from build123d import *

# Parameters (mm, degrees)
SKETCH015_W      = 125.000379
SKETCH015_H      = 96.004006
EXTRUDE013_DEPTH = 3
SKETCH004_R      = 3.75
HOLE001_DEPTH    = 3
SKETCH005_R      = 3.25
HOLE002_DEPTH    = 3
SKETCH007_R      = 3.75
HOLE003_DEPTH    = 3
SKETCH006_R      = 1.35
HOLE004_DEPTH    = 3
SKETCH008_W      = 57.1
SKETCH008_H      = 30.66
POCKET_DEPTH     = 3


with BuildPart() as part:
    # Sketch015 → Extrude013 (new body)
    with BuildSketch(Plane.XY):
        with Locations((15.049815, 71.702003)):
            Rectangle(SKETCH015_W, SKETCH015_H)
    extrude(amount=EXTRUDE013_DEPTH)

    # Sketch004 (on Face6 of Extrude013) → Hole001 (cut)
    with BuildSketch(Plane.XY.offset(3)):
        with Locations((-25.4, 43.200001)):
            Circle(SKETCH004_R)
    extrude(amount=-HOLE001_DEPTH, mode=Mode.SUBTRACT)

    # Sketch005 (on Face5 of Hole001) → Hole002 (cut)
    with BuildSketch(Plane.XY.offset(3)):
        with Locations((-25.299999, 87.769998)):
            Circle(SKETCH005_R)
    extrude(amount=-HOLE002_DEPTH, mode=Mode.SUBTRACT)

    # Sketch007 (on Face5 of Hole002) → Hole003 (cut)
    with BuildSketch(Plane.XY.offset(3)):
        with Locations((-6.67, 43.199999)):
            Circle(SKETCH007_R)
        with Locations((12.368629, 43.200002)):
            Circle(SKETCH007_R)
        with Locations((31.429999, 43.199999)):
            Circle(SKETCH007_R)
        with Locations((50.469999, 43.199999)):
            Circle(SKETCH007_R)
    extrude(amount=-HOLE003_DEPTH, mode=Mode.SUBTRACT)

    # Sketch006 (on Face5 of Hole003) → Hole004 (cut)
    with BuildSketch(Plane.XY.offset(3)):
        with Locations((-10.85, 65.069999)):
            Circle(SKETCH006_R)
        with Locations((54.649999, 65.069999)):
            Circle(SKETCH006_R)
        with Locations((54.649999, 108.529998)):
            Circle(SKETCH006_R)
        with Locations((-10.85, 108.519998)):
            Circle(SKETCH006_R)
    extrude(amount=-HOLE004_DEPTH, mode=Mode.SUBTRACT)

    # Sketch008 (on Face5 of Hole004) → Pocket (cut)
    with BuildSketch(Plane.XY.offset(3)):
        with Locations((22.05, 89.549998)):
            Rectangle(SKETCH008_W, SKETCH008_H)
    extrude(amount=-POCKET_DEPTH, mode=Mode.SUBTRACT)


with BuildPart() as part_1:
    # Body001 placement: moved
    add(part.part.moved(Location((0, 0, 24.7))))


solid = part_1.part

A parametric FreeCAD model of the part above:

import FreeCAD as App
import Part
import Sketcher
Q = App.Units.Quantity


def add_polygon(sketch, points):
    """Adds a closed chain of lines whose ends are joined by coincident constraints."""
    first, n = sketch.GeometryCount, len(points)
    for a, b in zip(points, points[1:] + points[:1]):
        sketch.addGeometry(Part.LineSegment(App.Vector(*a, 0), App.Vector(*b, 0)), False)
    for i in range(n):
        sketch.addConstraint(Sketcher.Constraint("Coincident", first + i, 2, first + (i + 1) % n, 1))

doc = App.newDocument("Part")
body = doc.addObject("PartDesign::Body", "Body")

sketch1 = body.newObject("Sketcher::SketchObject", "Sketch")
sketch1.AttachmentSupport = (doc.getObject("XY_Plane"), [""])
sketch1.MapMode = "FlatFace"
add_polygon(sketch1, [(-47.450375, 119.704006), (-47.450375, 23.7), (77.550005, 23.7), (77.550005, 119.704006)])
sketch1.addConstraint([
    Sketcher.Constraint("Vertical", 0),
    Sketcher.Constraint("Horizontal", 1),
    Sketcher.Constraint("Vertical", 2),
    Sketcher.Constraint("Horizontal", 3),
    Sketcher.Constraint("DistanceY", -1, 1, 0, 2, Q("23.7 mm")),
    Sketcher.Constraint("DistanceX", 1, 1, 1, 2, Q("125.000379 mm")),
    Sketcher.Constraint("DistanceY", 0, 2, 0, 1, Q("96.004006 mm")),
    Sketcher.Constraint("DistanceX", 0, 2, -1, 1, Q("47.450375 mm")),
])
pad1 = body.newObject("PartDesign::Pad", "Pad")
pad1.Profile = sketch1
pad1.Length = 3

sketch2 = body.newObject("Sketcher::SketchObject", "Sketch001")
sketch2.AttachmentSupport = (doc.getObject("XY_Plane"), [""])
sketch2.MapMode = "FlatFace"
sketch2.AttachmentOffset = App.Placement(App.Vector(0, 0, 3), App.Rotation())
sketch2.addGeometry(Part.Circle(App.Vector(-25.4, 43.200001, 0), App.Vector(0, 0, 1), 3.75), False)
sketch2.addConstraint([
    Sketcher.Constraint("Diameter", 0, Q("7.5 mm")),
    Sketcher.Constraint("DistanceX", 0, 3, -1, 1, Q("25.4 mm")),
    Sketcher.Constraint("DistanceY", -1, 1, 0, 3, Q("43.200001 mm")),
])
pocket1 = body.newObject("PartDesign::Pocket", "Pocket")
pocket1.Profile = sketch2
pocket1.Length = 3

sketch3 = body.newObject("Sketcher::SketchObject", "Sketch002")
sketch3.AttachmentSupport = (doc.getObject("XY_Plane"), [""])
sketch3.MapMode = "FlatFace"
sketch3.AttachmentOffset = App.Placement(App.Vector(0, 0, 3), App.Rotation())
sketch3.addGeometry(Part.Circle(App.Vector(-25.299999, 87.769998, 0), App.Vector(0, 0, 1), 3.25), False)
sketch3.addConstraint([
    Sketcher.Constraint("Diameter", 0, Q("6.5 mm")),
    Sketcher.Constraint("DistanceX", 0, 3, -1, 1, Q("25.299999 mm")),
    Sketcher.Constraint("DistanceY", -1, 1, 0, 3, Q("87.769998 mm")),
])
pocket2 = body.newObject("PartDesign::Pocket", "Pocket001")
pocket2.Profile = sketch3
pocket2.Length = 3

sketch4 = body.newObject("Sketcher::SketchObject", "Sketch003")
sketch4.AttachmentSupport = (doc.getObject("XY_Plane"), [""])
sketch4.MapMode = "FlatFace"
sketch4.AttachmentOffset = App.Placement(App.Vector(0, 0, 3), App.Rotation())
sketch4.addGeometry([
    Part.Circle(App.Vector(-6.67, 43.199999, 0), App.Vector(0, 0, 1), 3.75),
    Part.Circle(App.Vector(12.368629, 43.200002, 0), App.Vector(0, 0, 1), 3.75),
    Part.Circle(App.Vector(31.429999, 43.199999, 0), App.Vector(0, 0, 1), 3.75),
    Part.Circle(App.Vector(50.469999, 43.199999, 0), App.Vector(0, 0, 1), 3.75),
], False)
sketch4.addConstraint([
    Sketcher.Constraint("Equal", 0, 1),
    Sketcher.Constraint("Equal", 1, 2),
    Sketcher.Constraint("Equal", 2, 3),
    Sketcher.Constraint("Horizontal", 0, 3, 2, 3),
    Sketcher.Constraint("Horizontal", 2, 3, 3, 3),
    Sketcher.Constraint("Diameter", 0, Q("7.5 mm")),
    Sketcher.Constraint("DistanceY", -1, 1, 0, 3, Q("43.199999 mm")),
    Sketcher.Constraint("DistanceY", -1, 1, 1, 3, Q("43.200002 mm")),
    Sketcher.Constraint("DistanceX", 0, 3, 2, 3, Q("38.099999 mm")),
    Sketcher.Constraint("DistanceX", 0, 3, -1, 1, Q("6.67 mm")),
    Sketcher.Constraint("DistanceX", -1, 1, 3, 3, Q("50.469999 mm")),
    Sketcher.Constraint("DistanceX", -1, 1, 1, 3, Q("12.368629 mm")),
])
pocket3 = body.newObject("PartDesign::Pocket", "Pocket002")
pocket3.Profile = sketch4
pocket3.Length = 3

sketch5 = body.newObject("Sketcher::SketchObject", "Sketch004")
sketch5.AttachmentSupport = (doc.getObject("XY_Plane"), [""])
sketch5.MapMode = "FlatFace"
sketch5.AttachmentOffset = App.Placement(App.Vector(0, 0, 3), App.Rotation())
sketch5.addGeometry([
    Part.Circle(App.Vector(-10.85, 65.069999, 0), App.Vector(0, 0, 1), 1.35),
    Part.Circle(App.Vector(54.649999, 65.069999, 0), App.Vector(0, 0, 1), 1.35),
    Part.Circle(App.Vector(54.649999, 108.529998, 0), App.Vector(0, 0, 1), 1.35),
    Part.Circle(App.Vector(-10.85, 108.519998, 0), App.Vector(0, 0, 1), 1.35),
], False)
sketch5.addConstraint([
    Sketcher.Constraint("Equal", 0, 1),
    Sketcher.Constraint("Equal", 1, 2),
    Sketcher.Constraint("Equal", 2, 3),
    Sketcher.Constraint("Horizontal", 0, 3, 1, 3),
    Sketcher.Constraint("Vertical", 1, 3, 2, 3),
    Sketcher.Constraint("Vertical", 0, 3, 3, 3),
    Sketcher.Constraint("Diameter", 0, Q("2.7 mm")),
    Sketcher.Constraint("DistanceX", 0, 3, 1, 3, Q("65.499999 mm")),
    Sketcher.Constraint("DistanceX", 0, 3, -1, 1, Q("10.85 mm")),
    Sketcher.Constraint("DistanceY", -1, 1, 0, 3, Q("65.069999 mm")),
    Sketcher.Constraint("DistanceY", -1, 1, 2, 3, Q("108.529998 mm")),
    Sketcher.Constraint("DistanceY", -1, 1, 3, 3, Q("108.519998 mm")),
])
pocket4 = body.newObject("PartDesign::Pocket", "Pocket003")
pocket4.Profile = sketch5
pocket4.Length = 3

sketch6 = body.newObject("Sketcher::SketchObject", "Sketch005")
sketch6.AttachmentSupport = (doc.getObject("XY_Plane"), [""])
sketch6.MapMode = "FlatFace"
sketch6.AttachmentOffset = App.Placement(App.Vector(0, 0, 3), App.Rotation())
add_polygon(sketch6, [(-6.5, 104.879998), (-6.5, 74.219998), (50.6, 74.219998), (50.6, 104.879998)])
sketch6.addConstraint([
    Sketcher.Constraint("Vertical", 0),
    Sketcher.Constraint("Horizontal", 1),
    Sketcher.Constraint("Vertical", 2),
    Sketcher.Constraint("Horizontal", 3),
    Sketcher.Constraint("DistanceX", 1, 1, 1, 2, Q("57.1 mm")),
    Sketcher.Constraint("DistanceY", 0, 2, 0, 1, Q("30.66 mm")),
    Sketcher.Constraint("DistanceX", 0, 2, -1, 1, Q("6.5 mm")),
    Sketcher.Constraint("DistanceY", -1, 1, 0, 2, Q("74.219998 mm")),
])
pocket5 = body.newObject("PartDesign::Pocket", "Pocket004")
pocket5.Profile = sketch6
pocket5.Length = 3
body2 = doc.addObject("PartDesign::Body", "Body001")
doc.recompute()

body.Placement = App.Placement(App.Vector(0, 0, 24.7), App.Rotation(App.Vector(0, 0, 1), 0))
boolean = body2.newObject("PartDesign::Boolean", "Boolean")
boolean.Type = "Fuse"
boolean.addObjects([body])

doc.recompute()
